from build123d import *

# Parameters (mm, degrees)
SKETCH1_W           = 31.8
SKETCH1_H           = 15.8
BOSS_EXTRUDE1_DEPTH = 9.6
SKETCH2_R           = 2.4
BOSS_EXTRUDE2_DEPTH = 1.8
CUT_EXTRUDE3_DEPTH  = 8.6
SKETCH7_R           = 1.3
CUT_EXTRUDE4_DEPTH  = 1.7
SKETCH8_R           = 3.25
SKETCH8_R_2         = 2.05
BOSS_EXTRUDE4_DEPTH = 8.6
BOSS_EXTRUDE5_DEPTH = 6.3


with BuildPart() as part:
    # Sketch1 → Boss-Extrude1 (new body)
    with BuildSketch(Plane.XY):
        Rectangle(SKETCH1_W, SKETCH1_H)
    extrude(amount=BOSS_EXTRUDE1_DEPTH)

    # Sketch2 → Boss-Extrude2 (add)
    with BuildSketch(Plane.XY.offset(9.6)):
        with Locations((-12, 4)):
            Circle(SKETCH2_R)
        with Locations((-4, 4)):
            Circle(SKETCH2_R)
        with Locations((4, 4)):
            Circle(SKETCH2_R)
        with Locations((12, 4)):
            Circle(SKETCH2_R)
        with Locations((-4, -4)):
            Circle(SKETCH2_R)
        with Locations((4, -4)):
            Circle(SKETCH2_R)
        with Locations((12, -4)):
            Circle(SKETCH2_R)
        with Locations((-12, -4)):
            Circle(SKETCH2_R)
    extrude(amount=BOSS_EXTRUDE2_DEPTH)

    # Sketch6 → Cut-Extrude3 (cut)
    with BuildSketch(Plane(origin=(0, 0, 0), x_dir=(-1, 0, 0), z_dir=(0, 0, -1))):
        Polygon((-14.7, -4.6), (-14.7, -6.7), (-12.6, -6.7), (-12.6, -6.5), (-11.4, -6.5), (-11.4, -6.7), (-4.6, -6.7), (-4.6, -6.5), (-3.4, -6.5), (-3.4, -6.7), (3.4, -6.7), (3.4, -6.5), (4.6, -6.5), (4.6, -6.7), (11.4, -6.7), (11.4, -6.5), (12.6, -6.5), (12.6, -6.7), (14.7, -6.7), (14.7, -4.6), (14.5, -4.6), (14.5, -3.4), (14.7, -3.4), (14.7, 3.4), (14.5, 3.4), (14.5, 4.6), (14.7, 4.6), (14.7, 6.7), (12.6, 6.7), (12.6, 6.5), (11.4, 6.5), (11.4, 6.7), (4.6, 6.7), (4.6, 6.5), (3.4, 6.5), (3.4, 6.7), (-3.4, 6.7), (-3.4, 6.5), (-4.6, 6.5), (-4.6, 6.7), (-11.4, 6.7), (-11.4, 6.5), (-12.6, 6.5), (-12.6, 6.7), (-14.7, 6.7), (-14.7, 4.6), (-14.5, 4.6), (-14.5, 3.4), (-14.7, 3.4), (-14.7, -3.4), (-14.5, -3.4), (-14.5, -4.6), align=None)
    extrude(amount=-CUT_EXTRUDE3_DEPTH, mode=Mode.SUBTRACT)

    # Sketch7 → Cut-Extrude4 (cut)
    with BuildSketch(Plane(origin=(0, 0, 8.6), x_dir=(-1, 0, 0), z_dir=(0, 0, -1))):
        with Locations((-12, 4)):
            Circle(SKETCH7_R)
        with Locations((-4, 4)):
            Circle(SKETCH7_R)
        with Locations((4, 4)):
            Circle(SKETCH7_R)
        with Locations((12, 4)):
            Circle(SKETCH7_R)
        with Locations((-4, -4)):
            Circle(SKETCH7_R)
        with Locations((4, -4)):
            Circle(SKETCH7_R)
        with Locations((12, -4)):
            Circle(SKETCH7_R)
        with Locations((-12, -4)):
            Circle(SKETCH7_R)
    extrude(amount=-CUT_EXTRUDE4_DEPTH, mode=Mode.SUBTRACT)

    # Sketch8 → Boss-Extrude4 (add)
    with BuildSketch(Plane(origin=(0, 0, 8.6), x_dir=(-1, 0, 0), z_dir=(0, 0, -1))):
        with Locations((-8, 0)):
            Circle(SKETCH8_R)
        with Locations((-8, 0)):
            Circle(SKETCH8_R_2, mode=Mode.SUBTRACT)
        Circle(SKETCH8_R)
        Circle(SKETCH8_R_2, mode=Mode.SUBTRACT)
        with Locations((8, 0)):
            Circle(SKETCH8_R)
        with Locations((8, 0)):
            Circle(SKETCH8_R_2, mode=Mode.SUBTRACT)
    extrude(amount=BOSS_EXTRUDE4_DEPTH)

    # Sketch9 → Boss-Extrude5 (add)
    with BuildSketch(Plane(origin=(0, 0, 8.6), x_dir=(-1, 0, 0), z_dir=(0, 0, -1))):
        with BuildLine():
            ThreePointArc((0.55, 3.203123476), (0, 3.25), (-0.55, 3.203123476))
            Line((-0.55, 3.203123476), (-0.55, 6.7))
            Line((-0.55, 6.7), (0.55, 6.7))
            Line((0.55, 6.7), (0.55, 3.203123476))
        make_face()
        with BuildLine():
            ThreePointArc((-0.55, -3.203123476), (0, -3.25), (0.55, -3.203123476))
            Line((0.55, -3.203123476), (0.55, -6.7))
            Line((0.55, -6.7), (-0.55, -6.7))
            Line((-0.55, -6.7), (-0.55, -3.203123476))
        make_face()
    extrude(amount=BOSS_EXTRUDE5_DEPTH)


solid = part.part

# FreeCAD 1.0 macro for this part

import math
import FreeCAD as App
import Part
import Sketcher

V = App.Vector


def add_polygon(sketch, points):
    """Adds a closed chain of lines whose ends are joined by coincident constraints."""
    first, n = sketch.GeometryCount, len(points)
    for a, b in zip(points, points[1:] + points[:1]):
        sketch.addGeometry(Part.LineSegment(App.Vector(*a, 0), App.Vector(*b, 0)), False)
    for i in range(n):
        sketch.addConstraint(Sketcher.Constraint("Coincident", first + i, 2, first + (i + 1) % n, 1))

doc = App.newDocument("Part")
params = doc.addObject("Spreadsheet::Sheet", "Params")
for row, (alias, value) in enumerate([
    ("sketch1_width", "31.8 mm"),
    ("sketch1_height", "15.8 mm"),
    ("pad1_length", "9.6 mm"),
    ("sketch2_diameter", "4.8 mm"),
    ("pad2_length", "1.8 mm"),
    ("sketch3_width", "2.1 mm"),
    ("sketch3_width2", "1.2 mm"),
    ("sketch3_width3", "6.8 mm"),
    ("sketch3_width4", "0.2 mm"),
    ("pocket1_length", "8.6 mm"),
    ("sketch4_diameter", "2.6 mm"),
    ("pocket2_length", "1.7 mm"),
    ("sketch5_diameter", "6.5 mm"),
    ("sketch5_diameter2", "4.1 mm"),
    ("pad3_length", "8.6 mm"),
    ("sketch6_radius", "3.25 mm"),
    ("sketch6_width", "1.1 mm"),
    ("pad4_length", "6.3 mm"),
], start=1):
    params.set(f"A{row}", alias)
    params.set(f"B{row}", "=" + value)
    params.setAlias(f"B{row}", alias)

body = doc.addObject("PartDesign::Body", "Body")

sketch1 = body.newObject("Sketcher::SketchObject", "Sketch")
sketch1.AttachmentSupport = (doc.getObject("XY_Plane"), [""])
sketch1.MapMode = "FlatFace"
add_polygon(sketch1, [(-16, 8), (-16, -8), (16, -8), (16, 8)])
sketch1.addConstraint([
    Sketcher.Constraint("Vertical", 0),
    Sketcher.Constraint("Horizontal", 1),
    Sketcher.Constraint("Vertical", 2),
    Sketcher.Constraint("Horizontal", 3),
    Sketcher.Constraint("Symmetric", 0, 2, 2, 2, -1, 1),
    Sketcher.Constraint("DistanceX", 1, 1, 1, 2, 31.8),
    Sketcher.Constraint("DistanceY", 0, 2, 0, 1, 15.8),
])
sketch1.setExpression("Constraints[9]", "Params.sketch1_width")
sketch1.setExpression("Constraints[10]", "Params.sketch1_height")
pad1 = body.newObject("PartDesign::Pad", "Pad")
pad1.Profile = sketch1
pad1.setExpression("Length", "Params.pad1_length")

sketch2 = body.newObject("Sketcher::SketchObject", "Sketch001")
sketch2.AttachmentSupport = (doc.getObject("XY_Plane"), [""])
sketch2.MapMode = "FlatFace"
sketch2.AttachmentOffset = App.Placement(V(0, 0, 9.6), App.Rotation())
sketch2.addGeometry([
    Part.Circle(V(-12, 4, 0), V(0, 0, 1), 2.4),
    Part.Circle(V(-4, 4, 0), V(0, 0, 1), 2.4),
    Part.Circle(V(4, 4, 0), V(0, 0, 1), 2.4),
    Part.Circle(V(12, 4, 0), V(0, 0, 1), 2.4),
    Part.Circle(V(-4, -4, 0), V(0, 0, 1), 2.4),
    Part.Circle(V(4, -4, 0), V(0, 0, 1), 2.4),
    Part.Circle(V(12, -4, 0), V(0, 0, 1), 2.4),
    Part.Circle(V(-12, -4, 0), V(0, 0, 1), 2.4),
], False)
sketch2.addConstraint([
    Sketcher.Constraint("Equal", 0, 1),
    Sketcher.Constraint("Equal", 1, 2),
    Sketcher.Constraint("Equal", 2, 3),
    Sketcher.Constraint("Equal", 3, 4),
    Sketcher.Constraint("Equal", 4, 5),
    Sketcher.Constraint("Equal", 5, 6),
    Sketcher.Constraint("Equal", 6, 7),
    Sketcher.Constraint("Symmetric", 2, 3, 4, 3, -1, 1),
    Sketcher.Constraint("Symmetric", 1, 3, 5, 3, -1, 1),
    Sketcher.Constraint("Symmetric", 0, 3, 6, 3, -1, 1),
    Sketcher.Constraint("Symmetric", 3, 3, 7, 3, -1, 1),
    Sketcher.Constraint("Symmetric", 1, 3, 2, 3, -2),
    Sketcher.Constraint("Symmetric", 0, 3, 3, 3, -2),
    Sketcher.Constraint("Horizontal", 0, 3, 1, 3),
    Sketcher.Constraint("Diameter", 0, 4.8),
    Sketcher.Constraint("DistanceX", 0, 3, -1, 1, 12.0),
    Sketcher.Constraint("DistanceY", -1, 1, 0, 3, 4.0),
    Sketcher.Constraint("DistanceX", 1, 3, -1, 1, 4.0),
])
sketch2.setExpression("Constraints[14]", "Params.sketch2_diameter")
pad2 = body.newObject("PartDesign::Pad", "Pad001")
pad2.Profile = sketch2
pad2.setExpression("Length", "Params.pad2_length")

sketch3 = body.newObject("Sketcher::SketchObject", "Sketch002")
sketch3.AttachmentSupport = (doc.getObject("XY_Plane"), [""])
sketch3.MapMode = "FlatFace"
add_polygon(sketch3, [(14.7, -4.6), (14.7, -6.7), (12.6, -6.7), (12.6, -6.5), (11.4, -6.5), (11.4, -6.7), (4.6, -6.7), (4.6, -6.5), (3.4, -6.5), (3.4, -6.7), (-3.4, -6.7), (-3.4, -6.5), (-4.6, -6.5), (-4.6, -6.7), (-11.4, -6.7), (-11.4, -6.5), (-12.6, -6.5), (-12.6, -6.7), (-14.7, -6.7), (-14.7, -4.6), (-14.5, -4.6), (-14.5, -3.4), (-14.7, -3.4), (-14.7, 3.4), (-14.5, 3.4), (-14.5, 4.6), (-14.7, 4.6), (-14.7, 6.7), (-12.6, 6.7), (-12.6, 6.5), (-11.4, 6.5), (-11.4, 6.7), (-4.6, 6.7), (-4.6, 6.5), (-3.4, 6.5), (-3.4, 6.7), (3.4, 6.7), (3.4, 6.5), (4.6, 6.5), (4.6, 6.7), (11.4, 6.7), (11.4, 6.5), (12.6, 6.5), (12.6, 6.7), (14.7, 6.7), (14.7, 4.6), (14.5, 4.6), (14.5, 3.4), (14.7, 3.4), (14.7, -3.4), (14.5, -3.4), (14.5, -4.6)])
sketch3.addConstraint([
    Sketcher.Constraint("Vertical", 0),
    Sketcher.Constraint("Horizontal", 1),
    Sketcher.Constraint("Vertical", 2),
    Sketcher.Constraint("Horizontal", 3),
    Sketcher.Constraint("Vertical", 4),
    Sketcher.Constraint("Horizontal", 5),
    Sketcher.Constraint("Vertical", 6),
    Sketcher.Constraint("Horizontal", 7),
    Sketcher.Constraint("Vertical", 8),
    Sketcher.Constraint("Horizontal", 9),
    Sketcher.Constraint("Vertical", 10),
    Sketcher.Constraint("Horizontal", 11),
    Sketcher.Constraint("Vertical", 12),
    Sketcher.Constraint("Horizontal", 13),
    Sketcher.Constraint("Vertical", 14),
    Sketcher.Constraint("Horizontal", 15),
    Sketcher.Constraint("Vertical", 16),
    Sketcher.Constraint("Horizontal", 17),
    Sketcher.Constraint("Vertical", 18),
    Sketcher.Constraint("Horizontal", 19),
    Sketcher.Constraint("Vertical", 20),
    Sketcher.Constraint("Horizontal", 21),
    Sketcher.Constraint("Vertical", 22),
    Sketcher.Constraint("Horizontal", 23),
    Sketcher.Constraint("Vertical", 24),
    Sketcher.Constraint("Horizontal", 25),
    Sketcher.Constraint("Vertical", 26),
    Sketcher.Constraint("Horizontal", 27),
    Sketcher.Constraint("Vertical", 28),
    Sketcher.Constraint("Horizontal", 29),
    Sketcher.Constraint("Vertical", 30),
    Sketcher.Constraint("Horizontal", 31),
    Sketcher.Constraint("Vertical", 32),
    Sketcher.Constraint("Horizontal", 33),
    Sketcher.Constraint("Vertical", 34),
    Sketcher.Constraint("Horizontal", 35),
    Sketcher.Constraint("Vertical", 36),
    Sketcher.Constraint("Horizontal", 37),
    Sketcher.Constraint("Vertical", 38),
    Sketcher.Constraint("Horizontal", 39),
    Sketcher.Constraint("Vertical", 40),
    Sketcher.Constraint("Horizontal", 41),
    Sketcher.Constraint("Vertical", 42),
    Sketcher.Constraint("Horizontal", 43),
    Sketcher.Constraint("Vertical", 44),
    Sketcher.Constraint("Horizontal", 45),
    Sketcher.Constraint("Vertical", 46),
    Sketcher.Constraint("Horizontal", 47),
    Sketcher.Constraint("Vertical", 48),
    Sketcher.Constraint("Horizontal", 49),
    Sketcher.Constraint("Vertical", 50),
    Sketcher.Constraint("Horizontal", 51),
    Sketcher.Constraint("Symmetric", 0, 2, 26, 2, -1, 1),
    Sketcher.Constraint("Symmetric", 2, 2, 28, 2, -1, 1),
    Sketcher.Constraint("Symmetric", 4, 2, 30, 2, -1, 1),
    Sketcher.Constraint("Symmetric", 6, 2, 32, 2, -1, 1),
    Sketcher.Constraint("Symmetric", 8, 2, 34, 2, -1, 1),
    Sketcher.Constraint("Symmetric", 10, 2, 36, 2, -1, 1),
    Sketcher.Constraint("Symmetric", 12, 2, 38, 2, -1, 1),
    Sketcher.Constraint("Symmetric", 14, 2, 40, 2, -1, 1),
    Sketcher.Constraint("Symmetric", 16, 2, 42, 2, -1, 1),
    Sketcher.Constraint("Symmetric", 18, 2, 44, 2, -1, 1),
    Sketcher.Constraint("Symmetric", 20, 2, 46, 2, -1, 1),
    Sketcher.Constraint("Symmetric", 22, 2, 48, 2, -1, 1),
    Sketcher.Constraint("Symmetric", 24, 2, 50, 2, -1, 1),
    Sketcher.Constraint("Symmetric", 7, 2, 10, 2, -2),
    Sketcher.Constraint("Symmetric", 5, 2, 12, 2, -2),
    Sketcher.Constraint("Symmetric", 3, 2, 14, 2, -2),
    Sketcher.Constraint("Symmetric", 1, 2, 16, 2, -2),
    Sketcher.Constraint("Symmetric", 25, 2, 44, 2, -2),
    Sketcher.Constraint("Symmetric", 23, 2, 46, 2, -2),
    Sketcher.Constraint("Horizontal", 1, 2, 4, 2),
    Sketcher.Constraint("Horizontal", 3, 2, 6, 2),
    Sketcher.Constraint("Horizontal", 5, 2, 8, 2),
    Sketcher.Constraint("Vertical", 18, 2, 21, 2),
    Sketcher.Constraint("Equal", 3, 7),
    Sketcher.Constraint("Equal", 5, 9),
    Sketcher.Constraint("Equal", 43, 0),
    Sketcher.Constraint("Equal", 51, 2),
    Sketcher.Constraint("Equal", 41, 20),
    Sketcher.Constraint("Equal", 39, 22),
    Sketcher.Constraint("DistanceX", 1, 2, 1, 1, 2.1),
    Sketcher.Constraint("DistanceX", 3, 2, 3, 1, 1.2),
    Sketcher.Constraint("DistanceX", 5, 2, 5, 1, 6.8),
    Sketcher.Constraint("DistanceX", 19, 1, 19, 2, 0.2),
])
sketch3.setExpression("Constraints[133]", "Params.sketch3_width")
sketch3.setExpression("Constraints[134]", "Params.sketch3_width2")
sketch3.setExpression("Constraints[135]", "Params.sketch3_width3")
sketch3.setExpression("Constraints[136]", "Params.sketch3_width4")
pocket1 = body.newObject("PartDesign::Pocket", "Pocket")
pocket1.Profile = sketch3
pocket1.setExpression("Length", "Params.pocket1_length")
pocket1.Reversed = True

sketch4 = body.newObject("Sketcher::SketchObject", "Sketch003")
sketch4.AttachmentSupport = (doc.getObject("XY_Plane"), [""])
sketch4.MapMode = "FlatFace"
sketch4.AttachmentOffset = App.Placement(V(0, 0, 8.6), App.Rotation())
sketch4.addGeometry([
    Part.Circle(V(12, 4, 0), V(0, 0, 1), 1.3),
    Part.Circle(V(4, 4, 0), V(0, 0, 1), 1.3),
    Part.Circle(V(-4, 4, 0), V(0, 0, 1), 1.3),
    Part.Circle(V(-12, 4, 0), V(0, 0, 1), 1.3),
    Part.Circle(V(4, -4, 0), V(0, 0, 1), 1.3),
    Part.Circle(V(-4, -4, 0), V(0, 0, 1), 1.3),
    Part.Circle(V(-12, -4, 0), V(0, 0, 1), 1.3),
    Part.Circle(V(12, -4, 0), V(0, 0, 1), 1.3),
], False)
sketch4.addConstraint([
    Sketcher.Constraint("Equal", 0, 1),
    Sketcher.Constraint("Equal", 1, 2),
    Sketcher.Constraint("Equal", 2, 3),
    Sketcher.Constraint("Equal", 3, 4),
    Sketcher.Constraint("Equal", 4, 5),
    Sketcher.Constraint("Equal", 5, 6),
    Sketcher.Constraint("Equal", 6, 7),
    Sketcher.Constraint("Symmetric", 2, 3, 4, 3, -1, 1),
    Sketcher.Constraint("Symmetric", 1, 3, 5, 3, -1, 1),
    Sketcher.Constraint("Symmetric", 0, 3, 6, 3, -1, 1),
    Sketcher.Constraint("Symmetric", 3, 3, 7, 3, -1, 1),
    Sketcher.Constraint("Symmetric", 1, 3, 2, 3, -2),
    Sketcher.Constraint("Symmetric", 0, 3, 3, 3, -2),
    Sketcher.Constraint("Horizontal", 0, 3, 1, 3),
    Sketcher.Constraint("Diameter", 0, 2.6),
    Sketcher.Constraint("DistanceX", -1, 1, 0, 3, 12.0),
    Sketcher.Constraint("DistanceY", -1, 1, 0, 3, 4.0),
    Sketcher.Constraint("DistanceX", -1, 1, 1, 3, 4.0),
])
sketch4.setExpression("Constraints[14]", "Params.sketch4_diameter")
pocket2 = body.newObject("PartDesign::Pocket", "Pocket001")
pocket2.Profile = sketch4
pocket2.setExpression("Length", "Params.pocket2_length")
pocket2.Reversed = True

sketch5 = body.newObject("Sketcher::SketchObject", "Sketch004")
sketch5.AttachmentSupport = (doc.getObject("XY_Plane"), [""])
sketch5.MapMode = "FlatFace"
sketch5.AttachmentOffset = App.Placement(V(0, 0, 8.6), App.Rotation())
sketch5.addGeometry([
    Part.Circle(V(8, 0, 0), V(0, 0, 1), 3.2),
    Part.Circle(V(8, 0, 0), V(0, 0, 1), 2),
    Part.Circle(V(0, 0, 0), V(0, 0, 1), 3.2),
    Part.Circle(V(0, 0, 0), V(0, 0, 1), 2),
    Part.Circle(V(-8, 0, 0), V(0, 0, 1), 3.2),
    Part.Circle(V(-8, 0, 0), V(0, 0, 1), 2),
], False)
sketch5.addConstraint([
    Sketcher.Constraint("Coincident", 2, 3, -1, 1),
    Sketcher.Constraint("Coincident", 3, 3, -1, 1),
    Sketcher.Constraint("Coincident", 1, 3, 0, 3),
    Sketcher.Constraint("Coincident", 5, 3, 4, 3),
    Sketcher.Constraint("Equal", 0, 2),
    Sketcher.Constraint("Equal", 1, 3),
    Sketcher.Constraint("Equal", 2, 4),
    Sketcher.Constraint("Equal", 3, 5),
    Sketcher.Constraint("Symmetric", 0, 3, 4, 3, -1, 1),
    Sketcher.Constraint("PointOnObject", 0, 3, -1),
    Sketcher.Constraint("Diameter", 0, 6.5),
    Sketcher.Constraint("Diameter", 1, 4.1),
    Sketcher.Constraint("DistanceX", -1, 1, 0, 3, 8.0),
])
sketch5.setExpression("Constraints[10]", "Params.sketch5_diameter")
sketch5.setExpression("Constraints[11]", "Params.sketch5_diameter2")
pad3 = body.newObject("PartDesign::Pad", "Pad002")
pad3.Profile = sketch5
pad3.setExpression("Length", "Params.pad3_length")
pad3.Reversed = True

sketch6 = body.newObject("Sketcher::SketchObject", "Sketch005")
sketch6.AttachmentSupport = (doc.getObject("XY_Plane"), [""])
sketch6.MapMode = "FlatFace"
sketch6.AttachmentOffset = App.Placement(V(0, 0, 8.6), App.Rotation())
sketch6.addGeometry([
    Part.ArcOfCircle(Part.Circle(V(0, 0, 0), V(0, 0, 1), 3.3), math.radians(80.26), math.radians(99.74)),
    Part.LineSegment(V(-0.6, 3.2, 0), V(-0.6, 6.7, 0)),
    Part.LineSegment(V(-0.6, 6.7, 0), V(0.6, 6.7, 0)),
    Part.LineSegment(V(0.6, 6.7, 0), V(0.6, 3.2, 0)),
    Part.ArcOfCircle(Part.Circle(V(0, 0, 0), V(0, 0, 1), 3.3), math.radians(-99.74), math.radians(-80.26)),
    Part.LineSegment(V(0.6, -3.2, 0), V(0.6, -6.7, 0)),
    Part.LineSegment(V(0.6, -6.7, 0), V(-0.6, -6.7, 0)),
    Part.LineSegment(V(-0.6, -6.7, 0), V(-0.6, -3.2, 0)),
], False)
sketch6.addConstraint([
    Sketcher.Constraint("Coincident", 0, 2, 1, 1),
    Sketcher.Constraint("Coincident", 1, 2, 2, 1),
    Sketcher.Constraint("Coincident", 2, 2, 3, 1),
    Sketcher.Constraint("Coincident", 3, 2, 0, 1),
    Sketcher.Constraint("Coincident", 4, 2, 5, 1),
    Sketcher.Constraint("Coincident", 5, 2, 6, 1),
    Sketcher.Constraint("Coincident", 6, 2, 7, 1),
    Sketcher.Constraint("Coincident", 7, 2, 4, 1),
    Sketcher.Constraint("Vertical", 1),
    Sketcher.Constraint("Horizontal", 2),
    Sketcher.Constraint("Vertical", 3),
    Sketcher.Constraint("Vertical", 5),
    Sketcher.Constraint("Horizontal", 6),
    Sketcher.Constraint("Vertical", 7),
    Sketcher.Constraint("Coincident", 0, 3, -1, 1),
    Sketcher.Constraint("Coincident", 4, 3, -1, 1),
    Sketcher.Constraint("Equal", 0, 4),
    Sketcher.Constraint("Symmetric", 1, 2, 5, 2, -1, 1),
    Sketcher.Constraint("Horizontal", 0, 2, 3, 2),
    Sketcher.Constraint("Horizontal", 4, 2, 7, 2),
    Sketcher.Constraint("Radius", 0, 3.25),
    Sketcher.Constraint("DistanceX", 2, 1, 2, 2, 1.1),
    Sketcher.Constraint("DistanceY", -1, 1, 1, 2, 6.7),
])
sketch6.setExpression("Constraints[20]", "Params.sketch6_radius")
sketch6.setExpression("Constraints[21]", "Params.sketch6_width")
pad4 = body.newObject("PartDesign::Pad", "Pad003")
pad4.Profile = sketch6
pad4.setExpression("Length", "Params.pad4_length")
pad4.Reversed = True

doc.recompute()
